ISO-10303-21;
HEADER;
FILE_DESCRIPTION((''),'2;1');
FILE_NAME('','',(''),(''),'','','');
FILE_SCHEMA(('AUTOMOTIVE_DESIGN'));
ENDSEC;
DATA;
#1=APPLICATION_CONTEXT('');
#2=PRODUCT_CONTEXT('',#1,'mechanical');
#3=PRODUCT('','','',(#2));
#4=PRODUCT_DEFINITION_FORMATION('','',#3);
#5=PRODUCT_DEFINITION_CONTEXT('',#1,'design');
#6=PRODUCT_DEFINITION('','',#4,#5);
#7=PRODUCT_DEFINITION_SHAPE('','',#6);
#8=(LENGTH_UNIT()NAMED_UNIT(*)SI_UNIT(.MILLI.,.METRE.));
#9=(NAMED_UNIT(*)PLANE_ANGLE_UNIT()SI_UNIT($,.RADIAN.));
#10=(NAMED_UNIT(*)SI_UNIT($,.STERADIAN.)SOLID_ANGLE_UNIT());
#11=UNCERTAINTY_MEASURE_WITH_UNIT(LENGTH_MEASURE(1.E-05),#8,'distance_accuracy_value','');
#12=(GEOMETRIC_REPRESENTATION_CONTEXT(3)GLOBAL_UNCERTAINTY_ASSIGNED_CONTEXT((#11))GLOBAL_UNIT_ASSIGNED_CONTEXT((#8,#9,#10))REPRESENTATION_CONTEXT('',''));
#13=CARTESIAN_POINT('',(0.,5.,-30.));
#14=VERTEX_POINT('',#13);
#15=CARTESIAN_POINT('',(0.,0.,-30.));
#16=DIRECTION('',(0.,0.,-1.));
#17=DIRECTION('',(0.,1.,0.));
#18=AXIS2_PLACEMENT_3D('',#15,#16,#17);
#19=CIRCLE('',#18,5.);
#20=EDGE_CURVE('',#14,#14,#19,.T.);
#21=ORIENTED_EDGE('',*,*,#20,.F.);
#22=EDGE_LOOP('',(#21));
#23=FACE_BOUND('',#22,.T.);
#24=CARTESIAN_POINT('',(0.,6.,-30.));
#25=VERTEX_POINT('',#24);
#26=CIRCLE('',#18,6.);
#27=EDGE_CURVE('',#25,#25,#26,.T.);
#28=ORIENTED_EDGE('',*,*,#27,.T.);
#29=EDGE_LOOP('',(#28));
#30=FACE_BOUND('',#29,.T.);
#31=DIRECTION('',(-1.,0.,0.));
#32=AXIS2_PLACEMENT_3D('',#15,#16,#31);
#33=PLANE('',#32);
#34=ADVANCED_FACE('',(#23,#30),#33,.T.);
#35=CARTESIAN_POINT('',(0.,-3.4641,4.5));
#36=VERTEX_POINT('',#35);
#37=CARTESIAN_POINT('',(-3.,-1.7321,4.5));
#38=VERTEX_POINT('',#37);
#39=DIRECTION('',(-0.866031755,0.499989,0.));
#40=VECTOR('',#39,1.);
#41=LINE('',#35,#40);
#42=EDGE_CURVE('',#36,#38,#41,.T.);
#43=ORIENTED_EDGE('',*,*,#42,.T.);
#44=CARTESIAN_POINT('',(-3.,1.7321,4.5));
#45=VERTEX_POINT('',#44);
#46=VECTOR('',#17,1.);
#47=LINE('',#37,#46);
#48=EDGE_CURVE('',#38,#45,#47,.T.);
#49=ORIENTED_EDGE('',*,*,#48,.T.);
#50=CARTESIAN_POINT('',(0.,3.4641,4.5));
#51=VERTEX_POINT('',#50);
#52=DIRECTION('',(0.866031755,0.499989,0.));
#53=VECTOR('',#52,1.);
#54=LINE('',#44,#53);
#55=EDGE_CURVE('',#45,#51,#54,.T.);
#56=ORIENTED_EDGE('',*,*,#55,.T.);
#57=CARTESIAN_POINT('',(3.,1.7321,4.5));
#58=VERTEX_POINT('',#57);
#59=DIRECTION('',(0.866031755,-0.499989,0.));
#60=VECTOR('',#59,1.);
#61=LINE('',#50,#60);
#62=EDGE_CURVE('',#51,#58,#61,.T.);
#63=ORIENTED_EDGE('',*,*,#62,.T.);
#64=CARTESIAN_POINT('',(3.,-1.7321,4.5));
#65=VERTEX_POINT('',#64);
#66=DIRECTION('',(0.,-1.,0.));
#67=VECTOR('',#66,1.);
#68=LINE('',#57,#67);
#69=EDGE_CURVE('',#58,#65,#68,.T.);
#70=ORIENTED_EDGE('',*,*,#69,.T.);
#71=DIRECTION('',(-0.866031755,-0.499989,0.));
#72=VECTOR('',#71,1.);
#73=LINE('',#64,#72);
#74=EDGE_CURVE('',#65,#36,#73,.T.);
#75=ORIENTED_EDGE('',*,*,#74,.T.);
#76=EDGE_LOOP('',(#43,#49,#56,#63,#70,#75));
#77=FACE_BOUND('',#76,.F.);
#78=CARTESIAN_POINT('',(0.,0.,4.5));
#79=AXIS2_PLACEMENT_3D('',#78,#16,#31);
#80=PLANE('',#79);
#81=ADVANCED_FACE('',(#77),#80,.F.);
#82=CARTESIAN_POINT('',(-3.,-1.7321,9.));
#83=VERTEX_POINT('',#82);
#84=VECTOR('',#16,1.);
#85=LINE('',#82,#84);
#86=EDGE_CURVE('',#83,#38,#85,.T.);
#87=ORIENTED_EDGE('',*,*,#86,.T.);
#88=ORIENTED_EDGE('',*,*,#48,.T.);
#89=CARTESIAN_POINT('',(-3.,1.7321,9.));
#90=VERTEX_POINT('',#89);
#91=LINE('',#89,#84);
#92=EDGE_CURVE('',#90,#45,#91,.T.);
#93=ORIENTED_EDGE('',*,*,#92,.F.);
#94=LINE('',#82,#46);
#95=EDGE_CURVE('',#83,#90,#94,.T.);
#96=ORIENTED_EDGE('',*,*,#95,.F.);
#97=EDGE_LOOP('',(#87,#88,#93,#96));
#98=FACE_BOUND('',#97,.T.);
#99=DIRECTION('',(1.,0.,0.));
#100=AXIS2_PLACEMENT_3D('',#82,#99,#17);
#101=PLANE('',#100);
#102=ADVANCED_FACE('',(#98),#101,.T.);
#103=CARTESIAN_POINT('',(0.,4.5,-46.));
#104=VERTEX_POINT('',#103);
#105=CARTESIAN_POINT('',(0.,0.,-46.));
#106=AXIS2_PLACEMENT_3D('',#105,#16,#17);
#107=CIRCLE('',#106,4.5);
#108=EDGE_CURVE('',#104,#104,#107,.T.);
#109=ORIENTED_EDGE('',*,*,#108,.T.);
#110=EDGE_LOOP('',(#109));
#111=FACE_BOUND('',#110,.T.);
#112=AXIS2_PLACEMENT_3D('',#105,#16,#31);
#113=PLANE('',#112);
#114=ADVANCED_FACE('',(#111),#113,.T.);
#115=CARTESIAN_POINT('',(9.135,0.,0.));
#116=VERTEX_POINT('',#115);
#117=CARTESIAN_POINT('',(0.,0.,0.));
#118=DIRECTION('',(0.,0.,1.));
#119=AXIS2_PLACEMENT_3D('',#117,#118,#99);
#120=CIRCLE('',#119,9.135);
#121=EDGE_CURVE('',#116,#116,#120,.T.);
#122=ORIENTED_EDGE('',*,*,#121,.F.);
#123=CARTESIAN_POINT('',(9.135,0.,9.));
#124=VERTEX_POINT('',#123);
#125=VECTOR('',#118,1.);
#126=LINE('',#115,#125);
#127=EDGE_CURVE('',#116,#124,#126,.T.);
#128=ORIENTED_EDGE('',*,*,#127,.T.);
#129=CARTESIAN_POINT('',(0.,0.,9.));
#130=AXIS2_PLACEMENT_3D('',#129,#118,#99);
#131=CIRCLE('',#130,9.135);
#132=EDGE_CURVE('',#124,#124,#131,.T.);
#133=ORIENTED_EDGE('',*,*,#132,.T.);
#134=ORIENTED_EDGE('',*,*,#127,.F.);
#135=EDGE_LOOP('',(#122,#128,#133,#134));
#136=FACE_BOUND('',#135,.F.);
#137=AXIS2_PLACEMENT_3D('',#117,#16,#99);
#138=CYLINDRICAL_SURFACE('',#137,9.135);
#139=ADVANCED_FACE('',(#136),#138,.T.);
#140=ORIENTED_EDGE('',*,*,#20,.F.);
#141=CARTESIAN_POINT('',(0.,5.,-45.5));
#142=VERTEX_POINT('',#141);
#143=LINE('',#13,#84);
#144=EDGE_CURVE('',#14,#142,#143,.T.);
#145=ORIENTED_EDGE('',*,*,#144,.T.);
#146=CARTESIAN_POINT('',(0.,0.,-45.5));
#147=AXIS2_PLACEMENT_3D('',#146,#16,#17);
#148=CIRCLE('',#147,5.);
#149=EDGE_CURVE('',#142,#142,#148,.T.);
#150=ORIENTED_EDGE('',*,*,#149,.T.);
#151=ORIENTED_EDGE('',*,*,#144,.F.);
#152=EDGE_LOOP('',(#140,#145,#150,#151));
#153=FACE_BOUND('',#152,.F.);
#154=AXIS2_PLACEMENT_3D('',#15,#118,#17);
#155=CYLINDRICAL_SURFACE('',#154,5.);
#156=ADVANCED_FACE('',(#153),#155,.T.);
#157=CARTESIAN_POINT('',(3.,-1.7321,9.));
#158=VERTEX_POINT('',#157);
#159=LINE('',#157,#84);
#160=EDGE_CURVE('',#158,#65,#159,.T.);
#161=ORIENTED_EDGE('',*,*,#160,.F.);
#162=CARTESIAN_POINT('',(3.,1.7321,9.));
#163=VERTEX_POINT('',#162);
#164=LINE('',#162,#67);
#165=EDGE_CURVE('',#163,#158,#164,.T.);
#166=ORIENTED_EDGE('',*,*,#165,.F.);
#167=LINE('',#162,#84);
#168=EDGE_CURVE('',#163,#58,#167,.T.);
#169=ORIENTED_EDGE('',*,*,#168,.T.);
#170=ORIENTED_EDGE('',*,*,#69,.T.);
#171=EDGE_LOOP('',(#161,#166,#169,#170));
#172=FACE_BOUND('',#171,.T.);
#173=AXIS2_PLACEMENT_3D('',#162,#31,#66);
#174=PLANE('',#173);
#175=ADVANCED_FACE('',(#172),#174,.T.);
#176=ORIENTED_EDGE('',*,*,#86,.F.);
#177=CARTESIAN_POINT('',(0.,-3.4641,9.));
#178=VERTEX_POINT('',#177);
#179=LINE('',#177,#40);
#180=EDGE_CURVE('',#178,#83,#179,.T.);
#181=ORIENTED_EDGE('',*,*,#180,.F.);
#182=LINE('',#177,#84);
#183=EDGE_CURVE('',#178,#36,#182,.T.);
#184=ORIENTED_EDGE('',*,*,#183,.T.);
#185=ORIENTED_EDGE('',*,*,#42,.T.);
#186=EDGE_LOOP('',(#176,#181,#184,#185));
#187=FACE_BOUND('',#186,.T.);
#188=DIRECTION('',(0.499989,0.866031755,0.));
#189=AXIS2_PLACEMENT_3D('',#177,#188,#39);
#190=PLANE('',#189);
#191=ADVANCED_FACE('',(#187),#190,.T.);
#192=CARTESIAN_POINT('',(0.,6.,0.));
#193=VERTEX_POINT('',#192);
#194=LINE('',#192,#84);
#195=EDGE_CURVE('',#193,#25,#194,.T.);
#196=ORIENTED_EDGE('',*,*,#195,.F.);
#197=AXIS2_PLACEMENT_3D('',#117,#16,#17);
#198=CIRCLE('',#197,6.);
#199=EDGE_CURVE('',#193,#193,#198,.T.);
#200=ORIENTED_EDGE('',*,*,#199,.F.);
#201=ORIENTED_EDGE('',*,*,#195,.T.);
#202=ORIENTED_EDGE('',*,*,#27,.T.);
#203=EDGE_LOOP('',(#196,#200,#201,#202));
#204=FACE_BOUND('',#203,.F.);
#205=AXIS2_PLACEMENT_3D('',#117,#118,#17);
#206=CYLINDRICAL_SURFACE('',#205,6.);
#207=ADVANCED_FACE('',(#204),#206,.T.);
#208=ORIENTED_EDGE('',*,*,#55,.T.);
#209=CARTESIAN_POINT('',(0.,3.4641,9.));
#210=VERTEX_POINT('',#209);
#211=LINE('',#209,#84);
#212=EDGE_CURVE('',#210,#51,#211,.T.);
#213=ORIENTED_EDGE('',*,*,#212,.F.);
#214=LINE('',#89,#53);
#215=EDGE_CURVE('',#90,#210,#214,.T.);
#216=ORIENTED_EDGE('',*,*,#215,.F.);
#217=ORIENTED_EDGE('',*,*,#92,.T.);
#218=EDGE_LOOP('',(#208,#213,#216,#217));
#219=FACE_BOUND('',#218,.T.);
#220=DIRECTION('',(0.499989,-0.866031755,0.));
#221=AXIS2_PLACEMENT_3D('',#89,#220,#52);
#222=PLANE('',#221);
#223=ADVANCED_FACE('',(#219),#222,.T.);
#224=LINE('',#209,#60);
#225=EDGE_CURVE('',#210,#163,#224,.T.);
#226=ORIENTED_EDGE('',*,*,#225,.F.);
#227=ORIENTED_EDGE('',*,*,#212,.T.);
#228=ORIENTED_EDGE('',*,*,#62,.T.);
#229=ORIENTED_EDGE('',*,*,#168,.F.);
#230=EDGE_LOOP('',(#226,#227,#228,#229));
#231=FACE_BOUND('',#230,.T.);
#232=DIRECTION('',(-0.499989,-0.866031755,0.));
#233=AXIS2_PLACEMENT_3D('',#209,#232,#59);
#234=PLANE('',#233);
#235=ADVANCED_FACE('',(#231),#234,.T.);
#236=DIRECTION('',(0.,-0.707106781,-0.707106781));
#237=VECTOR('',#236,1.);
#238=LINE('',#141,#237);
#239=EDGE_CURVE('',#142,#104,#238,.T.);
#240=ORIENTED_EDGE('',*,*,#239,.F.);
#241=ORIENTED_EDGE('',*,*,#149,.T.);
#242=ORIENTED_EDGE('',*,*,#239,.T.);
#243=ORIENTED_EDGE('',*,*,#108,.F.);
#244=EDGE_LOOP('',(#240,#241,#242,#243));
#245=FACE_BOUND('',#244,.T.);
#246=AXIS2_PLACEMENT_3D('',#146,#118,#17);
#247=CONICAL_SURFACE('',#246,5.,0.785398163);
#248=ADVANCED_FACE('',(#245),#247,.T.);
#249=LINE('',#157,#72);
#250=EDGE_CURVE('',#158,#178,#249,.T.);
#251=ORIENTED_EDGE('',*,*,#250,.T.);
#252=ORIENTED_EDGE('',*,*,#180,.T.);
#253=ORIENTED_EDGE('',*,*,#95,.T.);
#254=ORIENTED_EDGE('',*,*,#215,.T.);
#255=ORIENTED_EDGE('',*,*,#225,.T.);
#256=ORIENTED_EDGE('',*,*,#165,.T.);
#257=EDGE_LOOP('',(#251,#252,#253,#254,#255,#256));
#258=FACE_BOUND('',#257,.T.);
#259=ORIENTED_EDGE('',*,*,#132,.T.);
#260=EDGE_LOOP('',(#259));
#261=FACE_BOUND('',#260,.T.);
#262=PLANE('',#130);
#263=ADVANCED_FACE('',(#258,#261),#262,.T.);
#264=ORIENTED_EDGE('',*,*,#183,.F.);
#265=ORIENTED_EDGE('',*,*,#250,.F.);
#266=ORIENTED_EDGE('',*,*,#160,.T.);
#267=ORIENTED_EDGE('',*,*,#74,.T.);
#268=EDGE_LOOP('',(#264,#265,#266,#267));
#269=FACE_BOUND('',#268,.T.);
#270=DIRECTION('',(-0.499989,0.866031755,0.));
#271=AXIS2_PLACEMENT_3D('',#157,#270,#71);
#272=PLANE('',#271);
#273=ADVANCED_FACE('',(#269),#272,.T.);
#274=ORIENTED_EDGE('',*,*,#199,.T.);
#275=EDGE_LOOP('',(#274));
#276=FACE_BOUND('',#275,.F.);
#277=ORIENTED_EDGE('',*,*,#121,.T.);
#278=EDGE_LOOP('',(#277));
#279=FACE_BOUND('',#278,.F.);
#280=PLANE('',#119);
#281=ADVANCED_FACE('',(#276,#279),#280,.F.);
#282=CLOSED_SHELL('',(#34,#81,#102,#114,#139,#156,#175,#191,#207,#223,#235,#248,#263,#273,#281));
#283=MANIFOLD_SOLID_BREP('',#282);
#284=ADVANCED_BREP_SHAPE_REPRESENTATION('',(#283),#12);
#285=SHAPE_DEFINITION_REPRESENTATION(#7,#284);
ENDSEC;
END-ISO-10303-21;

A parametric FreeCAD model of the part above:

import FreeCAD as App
import Part
import Sketcher
Q = App.Units.Quantity


def edges_at(feature, points):
    """Names of the edges that pass closest to the given points."""
    edges = feature.Shape.Edges
    near = lambda p: min(range(len(edges)), key=lambda i: edges[i].distToShape(Part.Vertex(*p))[0])
    return sorted({f"Edge{near(p) + 1}" for p in points})


def add_polygon(sketch, points):
    """Adds a closed chain of lines whose ends are joined by coincident constraints."""
    first, n = sketch.GeometryCount, len(points)
    for a, b in zip(points, points[1:] + points[:1]):
        sketch.addGeometry(Part.LineSegment(App.Vector(*a, 0), App.Vector(*b, 0)), False)
    for i in range(n):
        sketch.addConstraint(Sketcher.Constraint("Coincident", first + i, 2, first + (i + 1) % n, 1))

doc = App.newDocument("Part")
body = doc.addObject("PartDesign::Body", "Body")

sketch1 = doc.addObject("Sketcher::SketchObject", "Sketch")
body.addObject(sketch1)
sketch1.AttachmentSupport = (doc.XY_Plane, [""])
sketch1.MapMode = "FlatFace"
sketch1.addGeometry(Part.Circle(App.Vector(0, 0, 0), App.Vector(0, 0, 1), 9), False)
sketch1.addConstraint([
    Sketcher.Constraint("Coincident", 0, 3, -1, 1),
    Sketcher.Constraint("Diameter", 0, 18.27),
])
pad1 = doc.addObject("PartDesign::Pad", "Pad")
body.addObject(pad1)
pad1.Profile = sketch1
pad1.Length = 9

sketch2 = doc.addObject("Sketcher::SketchObject", "Sketch001")
body.addObject(sketch2)
sketch2.AttachmentSupport = (doc.XY_Plane, [""])
sketch2.MapMode = "FlatFace"
sketch2.AttachmentOffset = App.Placement(App.Vector(0, 0, 9), App.Rotation())
add_polygon(sketch2, [(-3, -1.7), (0, -3.5), (3, -1.7), (3, 1.7), (0, 3.5), (-3, 1.7)])
sketch2.addConstraint([
    Sketcher.Constraint("Vertical", 2),
    Sketcher.Constraint("Vertical", 5),
    Sketcher.Constraint("Symmetric", 0, 2, 3, 2, -1, 1),
    Sketcher.Constraint("Symmetric", 1, 2, 4, 2, -1, 1),
    Sketcher.Constraint("PointOnObject", 0, 2, -2),
    Sketcher.Constraint("Parallel", 0, 3),
    Sketcher.Constraint("Horizontal", 2, 2, 4, 2),
    Sketcher.Constraint("Angle", 0, Q("-29.9993 deg")),
    Sketcher.Constraint("DistanceX", -1, 1, 1, 2, 3.0),
    Sketcher.Constraint("DistanceY", 2, 1, 2, 2, 3.4642),
])
pocket1 = doc.addObject("PartDesign::Pocket", "Pocket")
body.addObject(pocket1)
pocket1.Profile = sketch2
pocket1.Length = 4.5

sketch3 = doc.addObject("Sketcher::SketchObject", "Sketch002")
body.addObject(sketch3)
sketch3.AttachmentSupport = (doc.XY_Plane, [""])
sketch3.MapMode = "FlatFace"
sketch3.addGeometry(Part.Circle(App.Vector(0, 0, 0), App.Vector(0, 0, 1), 6), False)
sketch3.addConstraint([
    Sketcher.Constraint("Coincident", 0, 3, -1, 1),
    Sketcher.Constraint("Diameter", 0, 12.0),
])
pad2 = doc.addObject("PartDesign::Pad", "Pad001")
body.addObject(pad2)
pad2.Profile = sketch3
pad2.Length = 30
pad2.Reversed = True

sketch4 = doc.addObject("Sketcher::SketchObject", "Sketch003")
body.addObject(sketch4)
sketch4.AttachmentSupport = (doc.XY_Plane, [""])
sketch4.MapMode = "FlatFace"
sketch4.AttachmentOffset = App.Placement(App.Vector(0, 0, -30), App.Rotation())
sketch4.addGeometry(Part.Circle(App.Vector(0, 0, 0), App.Vector(0, 0, 1), 5), False)
sketch4.addConstraint([
    Sketcher.Constraint("Coincident", 0, 3, -1, 1),
    Sketcher.Constraint("Diameter", 0, 10.0),
])
pad3 = doc.addObject("PartDesign::Pad", "Pad002")
body.addObject(pad3)
pad3.Profile = sketch4
pad3.Length = 16
pad3.Reversed = True
doc.recompute()

chamfer = doc.addObject("PartDesign::Chamfer", "Chamfer")
body.addObject(chamfer)
chamfer.Base = (pad3, edges_at(pad3, [(0, -5, -46)]))
chamfer.Size = 0.5

doc.recompute()
